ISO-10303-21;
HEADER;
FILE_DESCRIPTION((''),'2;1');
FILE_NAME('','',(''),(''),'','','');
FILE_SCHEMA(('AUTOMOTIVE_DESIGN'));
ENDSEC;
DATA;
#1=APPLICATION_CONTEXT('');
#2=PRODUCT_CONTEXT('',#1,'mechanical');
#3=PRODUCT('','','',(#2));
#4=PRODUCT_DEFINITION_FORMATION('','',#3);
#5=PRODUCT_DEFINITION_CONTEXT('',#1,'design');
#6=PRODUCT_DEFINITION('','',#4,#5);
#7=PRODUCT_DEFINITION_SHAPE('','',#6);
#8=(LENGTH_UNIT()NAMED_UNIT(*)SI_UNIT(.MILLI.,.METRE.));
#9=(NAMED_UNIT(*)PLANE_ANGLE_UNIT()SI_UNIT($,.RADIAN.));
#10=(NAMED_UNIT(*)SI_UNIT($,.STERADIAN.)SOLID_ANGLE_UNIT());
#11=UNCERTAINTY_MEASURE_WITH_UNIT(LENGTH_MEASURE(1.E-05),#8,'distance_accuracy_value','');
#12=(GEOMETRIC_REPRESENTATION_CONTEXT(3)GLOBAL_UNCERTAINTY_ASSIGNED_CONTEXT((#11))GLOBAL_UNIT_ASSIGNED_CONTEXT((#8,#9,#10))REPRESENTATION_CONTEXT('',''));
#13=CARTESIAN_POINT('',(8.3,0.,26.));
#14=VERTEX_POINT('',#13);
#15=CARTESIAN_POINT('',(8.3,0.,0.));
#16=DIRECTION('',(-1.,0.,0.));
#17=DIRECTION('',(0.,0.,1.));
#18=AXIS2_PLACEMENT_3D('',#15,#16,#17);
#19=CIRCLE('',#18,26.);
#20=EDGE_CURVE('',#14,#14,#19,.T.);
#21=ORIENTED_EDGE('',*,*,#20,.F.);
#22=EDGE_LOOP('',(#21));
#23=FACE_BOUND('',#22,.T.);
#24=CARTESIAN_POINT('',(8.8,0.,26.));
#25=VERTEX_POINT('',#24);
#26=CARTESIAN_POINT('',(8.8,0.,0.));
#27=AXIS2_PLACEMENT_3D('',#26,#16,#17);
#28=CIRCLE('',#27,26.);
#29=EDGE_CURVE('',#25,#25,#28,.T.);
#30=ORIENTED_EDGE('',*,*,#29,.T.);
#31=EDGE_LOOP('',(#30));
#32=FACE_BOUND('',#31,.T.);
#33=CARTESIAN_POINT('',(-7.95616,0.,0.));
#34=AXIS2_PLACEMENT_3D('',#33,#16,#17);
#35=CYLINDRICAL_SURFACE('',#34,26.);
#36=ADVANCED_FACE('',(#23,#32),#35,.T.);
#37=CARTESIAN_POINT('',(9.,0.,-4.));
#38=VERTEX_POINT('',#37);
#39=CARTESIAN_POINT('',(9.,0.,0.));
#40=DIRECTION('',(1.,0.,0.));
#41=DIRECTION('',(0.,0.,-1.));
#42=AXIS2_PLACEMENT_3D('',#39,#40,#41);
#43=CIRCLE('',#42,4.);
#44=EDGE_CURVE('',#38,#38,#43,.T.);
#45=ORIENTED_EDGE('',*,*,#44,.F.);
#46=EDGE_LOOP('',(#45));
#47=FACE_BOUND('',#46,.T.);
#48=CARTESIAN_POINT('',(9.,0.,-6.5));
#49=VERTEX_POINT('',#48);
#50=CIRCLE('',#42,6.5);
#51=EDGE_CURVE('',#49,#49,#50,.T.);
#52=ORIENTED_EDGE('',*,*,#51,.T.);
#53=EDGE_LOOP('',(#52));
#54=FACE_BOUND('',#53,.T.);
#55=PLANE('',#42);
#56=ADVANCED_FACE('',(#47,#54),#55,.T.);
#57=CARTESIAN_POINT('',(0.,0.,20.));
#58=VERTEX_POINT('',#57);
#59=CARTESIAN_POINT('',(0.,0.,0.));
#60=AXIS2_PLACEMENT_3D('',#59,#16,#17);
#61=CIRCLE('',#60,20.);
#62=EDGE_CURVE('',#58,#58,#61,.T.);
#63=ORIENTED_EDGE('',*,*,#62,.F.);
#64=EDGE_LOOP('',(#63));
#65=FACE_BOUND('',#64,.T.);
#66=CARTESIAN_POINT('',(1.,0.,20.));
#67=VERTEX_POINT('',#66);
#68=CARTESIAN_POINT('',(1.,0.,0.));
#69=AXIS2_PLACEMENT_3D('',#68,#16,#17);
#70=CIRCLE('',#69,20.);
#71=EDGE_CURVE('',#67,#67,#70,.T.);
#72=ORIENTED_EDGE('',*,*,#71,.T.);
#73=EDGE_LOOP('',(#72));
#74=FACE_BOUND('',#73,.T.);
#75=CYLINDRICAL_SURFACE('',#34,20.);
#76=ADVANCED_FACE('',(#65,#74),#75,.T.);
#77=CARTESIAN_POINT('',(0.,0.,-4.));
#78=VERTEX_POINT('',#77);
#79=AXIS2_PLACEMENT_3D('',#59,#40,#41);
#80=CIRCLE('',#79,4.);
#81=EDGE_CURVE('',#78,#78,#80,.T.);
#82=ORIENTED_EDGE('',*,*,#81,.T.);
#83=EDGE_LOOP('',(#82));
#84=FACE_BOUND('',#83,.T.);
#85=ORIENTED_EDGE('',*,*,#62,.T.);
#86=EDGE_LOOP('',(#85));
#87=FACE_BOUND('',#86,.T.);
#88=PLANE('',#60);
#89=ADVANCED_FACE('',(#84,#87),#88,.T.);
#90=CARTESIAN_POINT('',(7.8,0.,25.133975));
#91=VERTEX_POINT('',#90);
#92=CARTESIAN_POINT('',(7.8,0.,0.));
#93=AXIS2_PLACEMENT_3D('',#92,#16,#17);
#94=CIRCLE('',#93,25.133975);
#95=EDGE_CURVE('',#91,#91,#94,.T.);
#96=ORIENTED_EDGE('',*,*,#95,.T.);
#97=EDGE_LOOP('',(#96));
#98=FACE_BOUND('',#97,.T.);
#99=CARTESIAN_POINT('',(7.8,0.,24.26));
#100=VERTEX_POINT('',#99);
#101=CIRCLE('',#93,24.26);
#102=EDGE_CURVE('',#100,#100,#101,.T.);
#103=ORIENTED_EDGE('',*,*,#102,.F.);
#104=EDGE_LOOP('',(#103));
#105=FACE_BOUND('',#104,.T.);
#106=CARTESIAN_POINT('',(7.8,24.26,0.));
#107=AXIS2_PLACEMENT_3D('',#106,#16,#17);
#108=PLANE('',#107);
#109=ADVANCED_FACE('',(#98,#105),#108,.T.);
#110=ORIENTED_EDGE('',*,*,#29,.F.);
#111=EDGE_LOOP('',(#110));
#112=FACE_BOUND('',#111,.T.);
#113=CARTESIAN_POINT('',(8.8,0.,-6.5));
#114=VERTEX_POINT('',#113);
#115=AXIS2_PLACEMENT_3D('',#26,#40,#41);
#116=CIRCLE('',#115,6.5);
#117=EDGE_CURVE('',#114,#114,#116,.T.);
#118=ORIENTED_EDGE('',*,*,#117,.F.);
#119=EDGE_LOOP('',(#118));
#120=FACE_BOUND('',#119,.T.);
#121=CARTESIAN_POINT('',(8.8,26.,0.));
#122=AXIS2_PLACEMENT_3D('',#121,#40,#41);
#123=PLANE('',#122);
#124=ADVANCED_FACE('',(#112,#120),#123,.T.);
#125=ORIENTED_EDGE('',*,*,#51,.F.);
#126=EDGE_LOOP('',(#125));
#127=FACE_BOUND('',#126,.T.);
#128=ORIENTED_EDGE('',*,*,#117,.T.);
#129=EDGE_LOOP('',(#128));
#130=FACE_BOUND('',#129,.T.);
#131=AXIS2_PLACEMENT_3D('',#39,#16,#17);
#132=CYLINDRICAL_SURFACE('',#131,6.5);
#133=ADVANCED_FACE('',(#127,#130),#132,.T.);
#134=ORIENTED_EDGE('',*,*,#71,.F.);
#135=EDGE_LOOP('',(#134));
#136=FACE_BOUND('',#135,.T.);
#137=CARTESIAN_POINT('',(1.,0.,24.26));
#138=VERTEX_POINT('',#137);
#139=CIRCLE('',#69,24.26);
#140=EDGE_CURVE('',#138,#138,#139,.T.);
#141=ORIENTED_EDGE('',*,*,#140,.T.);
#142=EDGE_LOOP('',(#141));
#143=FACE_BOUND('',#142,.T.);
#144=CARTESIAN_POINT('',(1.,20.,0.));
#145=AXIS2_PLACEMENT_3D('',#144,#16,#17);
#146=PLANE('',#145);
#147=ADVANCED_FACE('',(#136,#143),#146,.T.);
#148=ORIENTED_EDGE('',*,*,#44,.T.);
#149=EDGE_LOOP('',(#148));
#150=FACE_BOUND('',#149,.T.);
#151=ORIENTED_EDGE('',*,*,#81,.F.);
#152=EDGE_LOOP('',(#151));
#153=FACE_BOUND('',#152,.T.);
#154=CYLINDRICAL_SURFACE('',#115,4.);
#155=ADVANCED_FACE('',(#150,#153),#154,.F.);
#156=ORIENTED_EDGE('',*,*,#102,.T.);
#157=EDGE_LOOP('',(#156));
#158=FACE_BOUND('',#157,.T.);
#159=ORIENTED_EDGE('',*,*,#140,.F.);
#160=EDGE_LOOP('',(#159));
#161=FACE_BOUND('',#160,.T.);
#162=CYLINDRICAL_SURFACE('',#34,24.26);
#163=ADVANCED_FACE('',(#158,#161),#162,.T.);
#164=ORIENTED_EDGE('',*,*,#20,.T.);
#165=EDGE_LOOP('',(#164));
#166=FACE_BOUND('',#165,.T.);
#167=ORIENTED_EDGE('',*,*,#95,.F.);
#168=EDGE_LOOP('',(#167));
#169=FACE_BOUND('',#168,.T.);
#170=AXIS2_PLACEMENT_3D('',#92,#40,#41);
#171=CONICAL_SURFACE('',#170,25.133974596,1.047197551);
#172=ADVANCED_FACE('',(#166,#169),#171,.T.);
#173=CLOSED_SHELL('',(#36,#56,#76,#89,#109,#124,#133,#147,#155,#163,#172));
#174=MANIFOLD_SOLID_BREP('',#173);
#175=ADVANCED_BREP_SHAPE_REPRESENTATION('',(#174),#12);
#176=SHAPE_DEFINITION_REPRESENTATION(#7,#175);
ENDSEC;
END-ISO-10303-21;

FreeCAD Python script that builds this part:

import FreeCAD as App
import Part
import Sketcher

V = App.Vector
Q = App.Units.Quantity


def add_polygon(sketch, points):
    """Adds a closed chain of lines whose ends are joined by coincident constraints."""
    first, n = sketch.GeometryCount, len(points)
    for a, b in zip(points, points[1:] + points[:1]):
        sketch.addGeometry(Part.LineSegment(App.Vector(*a, 0), App.Vector(*b, 0)), False)
    for i in range(n):
        sketch.addConstraint(Sketcher.Constraint("Coincident", first + i, 2, first + (i + 1) % n, 1))

doc = App.newDocument("Part")
body = doc.addObject("PartDesign::Body", "Body")

sketch1 = doc.addObject("Sketcher::SketchObject", "Sketch")
body.addObject(sketch1)
sketch1.AttachmentSupport = (doc.XY_Plane, [""])
sketch1.MapMode = "FlatFace"
add_polygon(sketch1, [(0, 0), (8.8, 0), (8.8, 26), (8.3, 26), (7.8, 25.1), (7.8, 24.3), (1, 24.3), (1, 20), (0, 20)])
sketch1.addConstraint(Sketcher.Constraint("Horizontal", 0))
sketch1.addConstraint(Sketcher.Constraint("Vertical", 1))
sketch1.addConstraint(Sketcher.Constraint("Horizontal", 2))
sketch1.addConstraint(Sketcher.Constraint("Vertical", 4))
sketch1.addConstraint(Sketcher.Constraint("Horizontal", 5))
sketch1.addConstraint(Sketcher.Constraint("Vertical", 6))
sketch1.addConstraint(Sketcher.Constraint("Horizontal", 7))
sketch1.addConstraint(Sketcher.Constraint("Vertical", 8))
sketch1.addConstraint(Sketcher.Constraint("Coincident", 8, 2, -1, 1))
sketch1.addConstraint(Sketcher.Constraint("DistanceX", 7, 2, 7, 1, Q("1 mm")))
sketch1.addConstraint(Sketcher.Constraint("DistanceY", 1, 1, 1, 2, Q("26 mm")))
sketch1.addConstraint(Sketcher.Constraint("DistanceY", 8, 2, 8, 1, Q("20 mm")))
sketch1.addConstraint(Sketcher.Constraint("Angle", 3, Q("-120 deg")))
sketch1.addConstraint(Sketcher.Constraint("Distance", 3, Q("1 mm")))
sketch1.addConstraint(Sketcher.Constraint("DistanceX", 0, 1, 0, 2, Q("8.8 mm")))
sketch1.addConstraint(Sketcher.Constraint("DistanceX", 2, 2, 2, 1, Q("0.5 mm")))
sketch1.addConstraint(Sketcher.Constraint("DistanceY", 6, 2, 6, 1, Q("4.26 mm")))
revolution = doc.addObject("PartDesign::Revolution", "Revolution")
body.addObject(revolution)
revolution.Profile = sketch1
revolution.ReferenceAxis = (sketch1, ["H_Axis"])
revolution.Angle = 360

sketch2 = doc.addObject("Sketcher::SketchObject", "Sketch001")
body.addObject(sketch2)
sketch2.AttachmentSupport = (doc.YZ_Plane, [""])
sketch2.MapMode = "FlatFace"
sketch2.AttachmentOffset = App.Placement(V(0, 0, 8.8), App.Rotation())
sketch2.addGeometry(Part.Circle(V(0, 0, 0), V(0, 0, 1), 4), False)
sketch2.addConstraint(Sketcher.Constraint("Coincident", 0, 3, -1, 1))
sketch2.addConstraint(Sketcher.Constraint("Diameter", 0, Q("8 mm")))
doc.recompute()
hole = doc.addObject("PartDesign::Hole", "Hole")
body.addObject(hole)
hole.Profile = sketch2
hole.ThreadType = "None"
hole.Diameter = 8
hole.DepthType = "ThroughAll"

sketch3 = doc.addObject("Sketcher::SketchObject", "Sketch002")
body.addObject(sketch3)
sketch3.AttachmentSupport = (doc.YZ_Plane, [""])
sketch3.MapMode = "FlatFace"
sketch3.AttachmentOffset = App.Placement(V(0, 0, 8.8), App.Rotation())
sketch3.addGeometry(Part.Circle(V(0, 0, 0), V(0, 0, 1), 6.5), False)
sketch3.addGeometry(Part.Circle(V(0, 0, 0), V(0, 0, 1), 4), False)
sketch3.addConstraint(Sketcher.Constraint("Coincident", 0, 3, -1, 1))
sketch3.addConstraint(Sketcher.Constraint("Coincident", 1, 3, -1, 1))
sketch3.addConstraint(Sketcher.Constraint("Diameter", 0, Q("13 mm")))
sketch3.addConstraint(Sketcher.Constraint("Diameter", 1, Q("8 mm")))
pad1 = doc.addObject("PartDesign::Pad", "Pad")
body.addObject(pad1)
pad1.Profile = sketch3
pad1.Length = 0.2

doc.recompute()
